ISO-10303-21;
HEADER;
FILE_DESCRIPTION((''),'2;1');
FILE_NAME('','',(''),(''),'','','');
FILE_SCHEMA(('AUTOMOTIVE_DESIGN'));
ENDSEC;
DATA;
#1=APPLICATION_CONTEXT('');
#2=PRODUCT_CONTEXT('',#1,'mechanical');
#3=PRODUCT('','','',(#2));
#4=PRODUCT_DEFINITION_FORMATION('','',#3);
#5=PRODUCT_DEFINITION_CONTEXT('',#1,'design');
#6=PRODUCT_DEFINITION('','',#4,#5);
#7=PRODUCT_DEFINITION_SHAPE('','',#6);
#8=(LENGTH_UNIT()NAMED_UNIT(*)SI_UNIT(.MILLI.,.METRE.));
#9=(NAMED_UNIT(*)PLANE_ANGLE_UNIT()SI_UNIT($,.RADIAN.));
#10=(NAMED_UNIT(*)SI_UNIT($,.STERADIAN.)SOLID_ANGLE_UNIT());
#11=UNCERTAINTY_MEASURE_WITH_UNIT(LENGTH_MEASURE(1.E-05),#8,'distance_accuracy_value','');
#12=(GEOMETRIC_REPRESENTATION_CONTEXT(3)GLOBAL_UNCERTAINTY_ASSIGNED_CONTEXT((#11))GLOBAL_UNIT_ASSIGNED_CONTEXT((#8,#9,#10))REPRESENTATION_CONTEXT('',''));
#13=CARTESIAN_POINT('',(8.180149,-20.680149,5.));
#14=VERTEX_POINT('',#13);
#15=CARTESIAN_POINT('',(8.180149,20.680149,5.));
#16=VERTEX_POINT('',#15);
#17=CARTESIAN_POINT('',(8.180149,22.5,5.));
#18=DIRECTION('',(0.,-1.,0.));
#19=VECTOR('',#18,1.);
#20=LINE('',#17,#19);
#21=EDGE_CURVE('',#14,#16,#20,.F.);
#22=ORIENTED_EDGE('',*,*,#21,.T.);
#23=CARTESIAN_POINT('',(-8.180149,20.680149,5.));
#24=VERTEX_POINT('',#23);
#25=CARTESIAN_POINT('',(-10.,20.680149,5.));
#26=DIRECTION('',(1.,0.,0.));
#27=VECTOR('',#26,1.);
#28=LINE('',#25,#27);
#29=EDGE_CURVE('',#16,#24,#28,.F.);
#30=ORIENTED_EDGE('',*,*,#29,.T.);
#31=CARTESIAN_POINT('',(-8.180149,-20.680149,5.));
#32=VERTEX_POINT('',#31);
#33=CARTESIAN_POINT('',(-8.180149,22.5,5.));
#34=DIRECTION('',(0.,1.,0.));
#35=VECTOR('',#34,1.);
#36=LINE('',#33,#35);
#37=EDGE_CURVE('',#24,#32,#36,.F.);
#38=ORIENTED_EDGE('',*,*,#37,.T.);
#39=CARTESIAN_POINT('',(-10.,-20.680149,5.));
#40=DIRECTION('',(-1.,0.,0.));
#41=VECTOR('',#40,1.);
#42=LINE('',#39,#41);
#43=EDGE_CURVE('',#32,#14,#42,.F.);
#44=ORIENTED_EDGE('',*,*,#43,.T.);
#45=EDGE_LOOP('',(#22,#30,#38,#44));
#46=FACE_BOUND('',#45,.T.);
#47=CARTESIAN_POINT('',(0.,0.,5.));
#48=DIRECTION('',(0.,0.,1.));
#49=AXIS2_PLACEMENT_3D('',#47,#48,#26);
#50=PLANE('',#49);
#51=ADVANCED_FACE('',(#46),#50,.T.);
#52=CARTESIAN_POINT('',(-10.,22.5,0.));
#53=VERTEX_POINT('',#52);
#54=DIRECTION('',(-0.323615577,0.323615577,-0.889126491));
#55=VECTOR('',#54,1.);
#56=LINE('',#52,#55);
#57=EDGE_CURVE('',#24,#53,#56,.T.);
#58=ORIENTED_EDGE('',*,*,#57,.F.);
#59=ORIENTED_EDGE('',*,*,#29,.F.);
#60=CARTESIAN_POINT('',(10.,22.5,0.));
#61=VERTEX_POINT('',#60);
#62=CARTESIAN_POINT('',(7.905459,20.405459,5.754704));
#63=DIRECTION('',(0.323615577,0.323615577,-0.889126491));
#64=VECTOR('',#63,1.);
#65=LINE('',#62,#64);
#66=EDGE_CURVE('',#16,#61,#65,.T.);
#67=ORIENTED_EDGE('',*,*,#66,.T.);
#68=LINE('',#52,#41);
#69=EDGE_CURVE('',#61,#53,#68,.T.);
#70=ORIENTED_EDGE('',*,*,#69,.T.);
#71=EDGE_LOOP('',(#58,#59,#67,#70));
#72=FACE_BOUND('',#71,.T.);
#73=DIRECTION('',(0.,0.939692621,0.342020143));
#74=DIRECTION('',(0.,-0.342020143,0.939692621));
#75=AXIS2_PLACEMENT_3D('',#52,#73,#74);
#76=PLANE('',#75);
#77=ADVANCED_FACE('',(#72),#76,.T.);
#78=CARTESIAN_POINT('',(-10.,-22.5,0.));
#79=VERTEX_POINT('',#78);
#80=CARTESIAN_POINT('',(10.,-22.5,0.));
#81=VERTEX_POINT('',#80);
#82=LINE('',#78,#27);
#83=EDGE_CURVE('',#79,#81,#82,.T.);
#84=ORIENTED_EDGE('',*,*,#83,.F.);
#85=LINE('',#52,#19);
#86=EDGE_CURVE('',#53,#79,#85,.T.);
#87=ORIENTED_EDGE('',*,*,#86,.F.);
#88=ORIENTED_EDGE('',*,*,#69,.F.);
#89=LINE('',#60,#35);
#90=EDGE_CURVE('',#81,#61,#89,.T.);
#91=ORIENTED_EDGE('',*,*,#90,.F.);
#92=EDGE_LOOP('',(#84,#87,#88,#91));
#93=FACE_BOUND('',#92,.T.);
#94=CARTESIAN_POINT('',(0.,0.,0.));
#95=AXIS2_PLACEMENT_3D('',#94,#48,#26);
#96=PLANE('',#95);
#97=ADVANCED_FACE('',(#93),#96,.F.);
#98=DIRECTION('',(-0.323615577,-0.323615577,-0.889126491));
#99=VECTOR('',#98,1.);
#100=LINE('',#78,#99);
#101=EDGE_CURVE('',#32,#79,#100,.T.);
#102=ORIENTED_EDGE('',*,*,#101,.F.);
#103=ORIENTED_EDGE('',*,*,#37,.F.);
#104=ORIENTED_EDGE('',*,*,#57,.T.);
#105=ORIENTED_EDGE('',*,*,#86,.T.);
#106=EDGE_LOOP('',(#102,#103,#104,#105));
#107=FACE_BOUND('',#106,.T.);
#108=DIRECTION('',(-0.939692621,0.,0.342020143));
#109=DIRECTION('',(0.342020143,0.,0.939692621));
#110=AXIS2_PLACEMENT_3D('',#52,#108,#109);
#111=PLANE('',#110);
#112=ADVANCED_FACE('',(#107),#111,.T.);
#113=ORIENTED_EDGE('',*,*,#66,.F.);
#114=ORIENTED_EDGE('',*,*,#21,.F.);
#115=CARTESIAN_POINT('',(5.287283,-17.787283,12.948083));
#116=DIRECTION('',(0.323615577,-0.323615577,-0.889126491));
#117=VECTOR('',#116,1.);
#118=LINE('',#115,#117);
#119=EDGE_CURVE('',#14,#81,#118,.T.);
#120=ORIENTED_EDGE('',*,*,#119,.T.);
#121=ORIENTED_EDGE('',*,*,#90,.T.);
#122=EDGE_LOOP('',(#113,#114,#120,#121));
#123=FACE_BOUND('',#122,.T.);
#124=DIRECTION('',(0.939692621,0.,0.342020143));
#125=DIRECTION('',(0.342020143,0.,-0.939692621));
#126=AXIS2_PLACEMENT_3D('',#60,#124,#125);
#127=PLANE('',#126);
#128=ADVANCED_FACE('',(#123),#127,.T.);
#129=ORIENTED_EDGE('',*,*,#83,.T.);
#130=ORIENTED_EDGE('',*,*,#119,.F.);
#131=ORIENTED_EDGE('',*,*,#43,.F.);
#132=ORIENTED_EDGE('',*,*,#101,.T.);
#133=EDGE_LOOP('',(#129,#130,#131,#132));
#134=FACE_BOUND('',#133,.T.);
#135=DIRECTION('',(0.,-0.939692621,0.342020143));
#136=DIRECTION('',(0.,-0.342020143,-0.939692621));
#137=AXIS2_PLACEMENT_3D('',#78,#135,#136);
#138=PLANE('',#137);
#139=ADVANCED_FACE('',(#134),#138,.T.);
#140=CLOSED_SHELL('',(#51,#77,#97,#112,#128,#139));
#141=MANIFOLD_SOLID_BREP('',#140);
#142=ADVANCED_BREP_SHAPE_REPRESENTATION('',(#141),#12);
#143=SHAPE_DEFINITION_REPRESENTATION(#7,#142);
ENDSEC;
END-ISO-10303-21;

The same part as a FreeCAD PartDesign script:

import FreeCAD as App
import Part
import Sketcher

V = App.Vector
Q = App.Units.Quantity


def add_polygon(sketch, points):
    """Adds a closed chain of lines whose ends are joined by coincident constraints."""
    first, n = sketch.GeometryCount, len(points)
    for a, b in zip(points, points[1:] + points[:1]):
        sketch.addGeometry(Part.LineSegment(App.Vector(*a, 0), App.Vector(*b, 0)), False)
    for i in range(n):
        sketch.addConstraint(Sketcher.Constraint("Coincident", first + i, 2, first + (i + 1) % n, 1))

doc = App.newDocument("Part")
params = doc.addObject("Spreadsheet::Sheet", "Params")
for row, (alias, value) in enumerate([
    ("sketch1_width", "20 mm"),
    ("sketch1_height", "45 mm"),
    ("pad1_length", "5 mm"),
    ("pad1_taper", "-20 deg"),
], start=1):
    params.set(f"A{row}", alias)
    params.set(f"B{row}", "=" + value)
    params.setAlias(f"B{row}", alias)

body = doc.addObject("PartDesign::Body", "Body")

sketch1 = body.newObject("Sketcher::SketchObject", "Sketch")
sketch1.AttachmentSupport = (doc.getObject("XY_Plane"), [""])
sketch1.MapMode = "FlatFace"
add_polygon(sketch1, [(-10, 22), (-10, -22), (10, -22), (10, 22)])
sketch1.addConstraint([
    Sketcher.Constraint("Vertical", 0),
    Sketcher.Constraint("Horizontal", 1),
    Sketcher.Constraint("Vertical", 2),
    Sketcher.Constraint("Horizontal", 3),
    Sketcher.Constraint("Symmetric", 0, 2, 2, 2, -1, 1),
    Sketcher.Constraint("DistanceX", 1, 1, 1, 2, Q("20 mm")),
    Sketcher.Constraint("DistanceY", 0, 2, 0, 1, Q("45 mm")),
])
sketch1.setExpression("Constraints[9]", "Params.sketch1_width")
sketch1.setExpression("Constraints[10]", "Params.sketch1_height")
pad1 = body.newObject("PartDesign::Pad", "Pad")
pad1.Profile = sketch1
pad1.setExpression("Length", "Params.pad1_length")
pad1.setExpression("TaperAngle", "Params.pad1_taper")

doc.recompute()
